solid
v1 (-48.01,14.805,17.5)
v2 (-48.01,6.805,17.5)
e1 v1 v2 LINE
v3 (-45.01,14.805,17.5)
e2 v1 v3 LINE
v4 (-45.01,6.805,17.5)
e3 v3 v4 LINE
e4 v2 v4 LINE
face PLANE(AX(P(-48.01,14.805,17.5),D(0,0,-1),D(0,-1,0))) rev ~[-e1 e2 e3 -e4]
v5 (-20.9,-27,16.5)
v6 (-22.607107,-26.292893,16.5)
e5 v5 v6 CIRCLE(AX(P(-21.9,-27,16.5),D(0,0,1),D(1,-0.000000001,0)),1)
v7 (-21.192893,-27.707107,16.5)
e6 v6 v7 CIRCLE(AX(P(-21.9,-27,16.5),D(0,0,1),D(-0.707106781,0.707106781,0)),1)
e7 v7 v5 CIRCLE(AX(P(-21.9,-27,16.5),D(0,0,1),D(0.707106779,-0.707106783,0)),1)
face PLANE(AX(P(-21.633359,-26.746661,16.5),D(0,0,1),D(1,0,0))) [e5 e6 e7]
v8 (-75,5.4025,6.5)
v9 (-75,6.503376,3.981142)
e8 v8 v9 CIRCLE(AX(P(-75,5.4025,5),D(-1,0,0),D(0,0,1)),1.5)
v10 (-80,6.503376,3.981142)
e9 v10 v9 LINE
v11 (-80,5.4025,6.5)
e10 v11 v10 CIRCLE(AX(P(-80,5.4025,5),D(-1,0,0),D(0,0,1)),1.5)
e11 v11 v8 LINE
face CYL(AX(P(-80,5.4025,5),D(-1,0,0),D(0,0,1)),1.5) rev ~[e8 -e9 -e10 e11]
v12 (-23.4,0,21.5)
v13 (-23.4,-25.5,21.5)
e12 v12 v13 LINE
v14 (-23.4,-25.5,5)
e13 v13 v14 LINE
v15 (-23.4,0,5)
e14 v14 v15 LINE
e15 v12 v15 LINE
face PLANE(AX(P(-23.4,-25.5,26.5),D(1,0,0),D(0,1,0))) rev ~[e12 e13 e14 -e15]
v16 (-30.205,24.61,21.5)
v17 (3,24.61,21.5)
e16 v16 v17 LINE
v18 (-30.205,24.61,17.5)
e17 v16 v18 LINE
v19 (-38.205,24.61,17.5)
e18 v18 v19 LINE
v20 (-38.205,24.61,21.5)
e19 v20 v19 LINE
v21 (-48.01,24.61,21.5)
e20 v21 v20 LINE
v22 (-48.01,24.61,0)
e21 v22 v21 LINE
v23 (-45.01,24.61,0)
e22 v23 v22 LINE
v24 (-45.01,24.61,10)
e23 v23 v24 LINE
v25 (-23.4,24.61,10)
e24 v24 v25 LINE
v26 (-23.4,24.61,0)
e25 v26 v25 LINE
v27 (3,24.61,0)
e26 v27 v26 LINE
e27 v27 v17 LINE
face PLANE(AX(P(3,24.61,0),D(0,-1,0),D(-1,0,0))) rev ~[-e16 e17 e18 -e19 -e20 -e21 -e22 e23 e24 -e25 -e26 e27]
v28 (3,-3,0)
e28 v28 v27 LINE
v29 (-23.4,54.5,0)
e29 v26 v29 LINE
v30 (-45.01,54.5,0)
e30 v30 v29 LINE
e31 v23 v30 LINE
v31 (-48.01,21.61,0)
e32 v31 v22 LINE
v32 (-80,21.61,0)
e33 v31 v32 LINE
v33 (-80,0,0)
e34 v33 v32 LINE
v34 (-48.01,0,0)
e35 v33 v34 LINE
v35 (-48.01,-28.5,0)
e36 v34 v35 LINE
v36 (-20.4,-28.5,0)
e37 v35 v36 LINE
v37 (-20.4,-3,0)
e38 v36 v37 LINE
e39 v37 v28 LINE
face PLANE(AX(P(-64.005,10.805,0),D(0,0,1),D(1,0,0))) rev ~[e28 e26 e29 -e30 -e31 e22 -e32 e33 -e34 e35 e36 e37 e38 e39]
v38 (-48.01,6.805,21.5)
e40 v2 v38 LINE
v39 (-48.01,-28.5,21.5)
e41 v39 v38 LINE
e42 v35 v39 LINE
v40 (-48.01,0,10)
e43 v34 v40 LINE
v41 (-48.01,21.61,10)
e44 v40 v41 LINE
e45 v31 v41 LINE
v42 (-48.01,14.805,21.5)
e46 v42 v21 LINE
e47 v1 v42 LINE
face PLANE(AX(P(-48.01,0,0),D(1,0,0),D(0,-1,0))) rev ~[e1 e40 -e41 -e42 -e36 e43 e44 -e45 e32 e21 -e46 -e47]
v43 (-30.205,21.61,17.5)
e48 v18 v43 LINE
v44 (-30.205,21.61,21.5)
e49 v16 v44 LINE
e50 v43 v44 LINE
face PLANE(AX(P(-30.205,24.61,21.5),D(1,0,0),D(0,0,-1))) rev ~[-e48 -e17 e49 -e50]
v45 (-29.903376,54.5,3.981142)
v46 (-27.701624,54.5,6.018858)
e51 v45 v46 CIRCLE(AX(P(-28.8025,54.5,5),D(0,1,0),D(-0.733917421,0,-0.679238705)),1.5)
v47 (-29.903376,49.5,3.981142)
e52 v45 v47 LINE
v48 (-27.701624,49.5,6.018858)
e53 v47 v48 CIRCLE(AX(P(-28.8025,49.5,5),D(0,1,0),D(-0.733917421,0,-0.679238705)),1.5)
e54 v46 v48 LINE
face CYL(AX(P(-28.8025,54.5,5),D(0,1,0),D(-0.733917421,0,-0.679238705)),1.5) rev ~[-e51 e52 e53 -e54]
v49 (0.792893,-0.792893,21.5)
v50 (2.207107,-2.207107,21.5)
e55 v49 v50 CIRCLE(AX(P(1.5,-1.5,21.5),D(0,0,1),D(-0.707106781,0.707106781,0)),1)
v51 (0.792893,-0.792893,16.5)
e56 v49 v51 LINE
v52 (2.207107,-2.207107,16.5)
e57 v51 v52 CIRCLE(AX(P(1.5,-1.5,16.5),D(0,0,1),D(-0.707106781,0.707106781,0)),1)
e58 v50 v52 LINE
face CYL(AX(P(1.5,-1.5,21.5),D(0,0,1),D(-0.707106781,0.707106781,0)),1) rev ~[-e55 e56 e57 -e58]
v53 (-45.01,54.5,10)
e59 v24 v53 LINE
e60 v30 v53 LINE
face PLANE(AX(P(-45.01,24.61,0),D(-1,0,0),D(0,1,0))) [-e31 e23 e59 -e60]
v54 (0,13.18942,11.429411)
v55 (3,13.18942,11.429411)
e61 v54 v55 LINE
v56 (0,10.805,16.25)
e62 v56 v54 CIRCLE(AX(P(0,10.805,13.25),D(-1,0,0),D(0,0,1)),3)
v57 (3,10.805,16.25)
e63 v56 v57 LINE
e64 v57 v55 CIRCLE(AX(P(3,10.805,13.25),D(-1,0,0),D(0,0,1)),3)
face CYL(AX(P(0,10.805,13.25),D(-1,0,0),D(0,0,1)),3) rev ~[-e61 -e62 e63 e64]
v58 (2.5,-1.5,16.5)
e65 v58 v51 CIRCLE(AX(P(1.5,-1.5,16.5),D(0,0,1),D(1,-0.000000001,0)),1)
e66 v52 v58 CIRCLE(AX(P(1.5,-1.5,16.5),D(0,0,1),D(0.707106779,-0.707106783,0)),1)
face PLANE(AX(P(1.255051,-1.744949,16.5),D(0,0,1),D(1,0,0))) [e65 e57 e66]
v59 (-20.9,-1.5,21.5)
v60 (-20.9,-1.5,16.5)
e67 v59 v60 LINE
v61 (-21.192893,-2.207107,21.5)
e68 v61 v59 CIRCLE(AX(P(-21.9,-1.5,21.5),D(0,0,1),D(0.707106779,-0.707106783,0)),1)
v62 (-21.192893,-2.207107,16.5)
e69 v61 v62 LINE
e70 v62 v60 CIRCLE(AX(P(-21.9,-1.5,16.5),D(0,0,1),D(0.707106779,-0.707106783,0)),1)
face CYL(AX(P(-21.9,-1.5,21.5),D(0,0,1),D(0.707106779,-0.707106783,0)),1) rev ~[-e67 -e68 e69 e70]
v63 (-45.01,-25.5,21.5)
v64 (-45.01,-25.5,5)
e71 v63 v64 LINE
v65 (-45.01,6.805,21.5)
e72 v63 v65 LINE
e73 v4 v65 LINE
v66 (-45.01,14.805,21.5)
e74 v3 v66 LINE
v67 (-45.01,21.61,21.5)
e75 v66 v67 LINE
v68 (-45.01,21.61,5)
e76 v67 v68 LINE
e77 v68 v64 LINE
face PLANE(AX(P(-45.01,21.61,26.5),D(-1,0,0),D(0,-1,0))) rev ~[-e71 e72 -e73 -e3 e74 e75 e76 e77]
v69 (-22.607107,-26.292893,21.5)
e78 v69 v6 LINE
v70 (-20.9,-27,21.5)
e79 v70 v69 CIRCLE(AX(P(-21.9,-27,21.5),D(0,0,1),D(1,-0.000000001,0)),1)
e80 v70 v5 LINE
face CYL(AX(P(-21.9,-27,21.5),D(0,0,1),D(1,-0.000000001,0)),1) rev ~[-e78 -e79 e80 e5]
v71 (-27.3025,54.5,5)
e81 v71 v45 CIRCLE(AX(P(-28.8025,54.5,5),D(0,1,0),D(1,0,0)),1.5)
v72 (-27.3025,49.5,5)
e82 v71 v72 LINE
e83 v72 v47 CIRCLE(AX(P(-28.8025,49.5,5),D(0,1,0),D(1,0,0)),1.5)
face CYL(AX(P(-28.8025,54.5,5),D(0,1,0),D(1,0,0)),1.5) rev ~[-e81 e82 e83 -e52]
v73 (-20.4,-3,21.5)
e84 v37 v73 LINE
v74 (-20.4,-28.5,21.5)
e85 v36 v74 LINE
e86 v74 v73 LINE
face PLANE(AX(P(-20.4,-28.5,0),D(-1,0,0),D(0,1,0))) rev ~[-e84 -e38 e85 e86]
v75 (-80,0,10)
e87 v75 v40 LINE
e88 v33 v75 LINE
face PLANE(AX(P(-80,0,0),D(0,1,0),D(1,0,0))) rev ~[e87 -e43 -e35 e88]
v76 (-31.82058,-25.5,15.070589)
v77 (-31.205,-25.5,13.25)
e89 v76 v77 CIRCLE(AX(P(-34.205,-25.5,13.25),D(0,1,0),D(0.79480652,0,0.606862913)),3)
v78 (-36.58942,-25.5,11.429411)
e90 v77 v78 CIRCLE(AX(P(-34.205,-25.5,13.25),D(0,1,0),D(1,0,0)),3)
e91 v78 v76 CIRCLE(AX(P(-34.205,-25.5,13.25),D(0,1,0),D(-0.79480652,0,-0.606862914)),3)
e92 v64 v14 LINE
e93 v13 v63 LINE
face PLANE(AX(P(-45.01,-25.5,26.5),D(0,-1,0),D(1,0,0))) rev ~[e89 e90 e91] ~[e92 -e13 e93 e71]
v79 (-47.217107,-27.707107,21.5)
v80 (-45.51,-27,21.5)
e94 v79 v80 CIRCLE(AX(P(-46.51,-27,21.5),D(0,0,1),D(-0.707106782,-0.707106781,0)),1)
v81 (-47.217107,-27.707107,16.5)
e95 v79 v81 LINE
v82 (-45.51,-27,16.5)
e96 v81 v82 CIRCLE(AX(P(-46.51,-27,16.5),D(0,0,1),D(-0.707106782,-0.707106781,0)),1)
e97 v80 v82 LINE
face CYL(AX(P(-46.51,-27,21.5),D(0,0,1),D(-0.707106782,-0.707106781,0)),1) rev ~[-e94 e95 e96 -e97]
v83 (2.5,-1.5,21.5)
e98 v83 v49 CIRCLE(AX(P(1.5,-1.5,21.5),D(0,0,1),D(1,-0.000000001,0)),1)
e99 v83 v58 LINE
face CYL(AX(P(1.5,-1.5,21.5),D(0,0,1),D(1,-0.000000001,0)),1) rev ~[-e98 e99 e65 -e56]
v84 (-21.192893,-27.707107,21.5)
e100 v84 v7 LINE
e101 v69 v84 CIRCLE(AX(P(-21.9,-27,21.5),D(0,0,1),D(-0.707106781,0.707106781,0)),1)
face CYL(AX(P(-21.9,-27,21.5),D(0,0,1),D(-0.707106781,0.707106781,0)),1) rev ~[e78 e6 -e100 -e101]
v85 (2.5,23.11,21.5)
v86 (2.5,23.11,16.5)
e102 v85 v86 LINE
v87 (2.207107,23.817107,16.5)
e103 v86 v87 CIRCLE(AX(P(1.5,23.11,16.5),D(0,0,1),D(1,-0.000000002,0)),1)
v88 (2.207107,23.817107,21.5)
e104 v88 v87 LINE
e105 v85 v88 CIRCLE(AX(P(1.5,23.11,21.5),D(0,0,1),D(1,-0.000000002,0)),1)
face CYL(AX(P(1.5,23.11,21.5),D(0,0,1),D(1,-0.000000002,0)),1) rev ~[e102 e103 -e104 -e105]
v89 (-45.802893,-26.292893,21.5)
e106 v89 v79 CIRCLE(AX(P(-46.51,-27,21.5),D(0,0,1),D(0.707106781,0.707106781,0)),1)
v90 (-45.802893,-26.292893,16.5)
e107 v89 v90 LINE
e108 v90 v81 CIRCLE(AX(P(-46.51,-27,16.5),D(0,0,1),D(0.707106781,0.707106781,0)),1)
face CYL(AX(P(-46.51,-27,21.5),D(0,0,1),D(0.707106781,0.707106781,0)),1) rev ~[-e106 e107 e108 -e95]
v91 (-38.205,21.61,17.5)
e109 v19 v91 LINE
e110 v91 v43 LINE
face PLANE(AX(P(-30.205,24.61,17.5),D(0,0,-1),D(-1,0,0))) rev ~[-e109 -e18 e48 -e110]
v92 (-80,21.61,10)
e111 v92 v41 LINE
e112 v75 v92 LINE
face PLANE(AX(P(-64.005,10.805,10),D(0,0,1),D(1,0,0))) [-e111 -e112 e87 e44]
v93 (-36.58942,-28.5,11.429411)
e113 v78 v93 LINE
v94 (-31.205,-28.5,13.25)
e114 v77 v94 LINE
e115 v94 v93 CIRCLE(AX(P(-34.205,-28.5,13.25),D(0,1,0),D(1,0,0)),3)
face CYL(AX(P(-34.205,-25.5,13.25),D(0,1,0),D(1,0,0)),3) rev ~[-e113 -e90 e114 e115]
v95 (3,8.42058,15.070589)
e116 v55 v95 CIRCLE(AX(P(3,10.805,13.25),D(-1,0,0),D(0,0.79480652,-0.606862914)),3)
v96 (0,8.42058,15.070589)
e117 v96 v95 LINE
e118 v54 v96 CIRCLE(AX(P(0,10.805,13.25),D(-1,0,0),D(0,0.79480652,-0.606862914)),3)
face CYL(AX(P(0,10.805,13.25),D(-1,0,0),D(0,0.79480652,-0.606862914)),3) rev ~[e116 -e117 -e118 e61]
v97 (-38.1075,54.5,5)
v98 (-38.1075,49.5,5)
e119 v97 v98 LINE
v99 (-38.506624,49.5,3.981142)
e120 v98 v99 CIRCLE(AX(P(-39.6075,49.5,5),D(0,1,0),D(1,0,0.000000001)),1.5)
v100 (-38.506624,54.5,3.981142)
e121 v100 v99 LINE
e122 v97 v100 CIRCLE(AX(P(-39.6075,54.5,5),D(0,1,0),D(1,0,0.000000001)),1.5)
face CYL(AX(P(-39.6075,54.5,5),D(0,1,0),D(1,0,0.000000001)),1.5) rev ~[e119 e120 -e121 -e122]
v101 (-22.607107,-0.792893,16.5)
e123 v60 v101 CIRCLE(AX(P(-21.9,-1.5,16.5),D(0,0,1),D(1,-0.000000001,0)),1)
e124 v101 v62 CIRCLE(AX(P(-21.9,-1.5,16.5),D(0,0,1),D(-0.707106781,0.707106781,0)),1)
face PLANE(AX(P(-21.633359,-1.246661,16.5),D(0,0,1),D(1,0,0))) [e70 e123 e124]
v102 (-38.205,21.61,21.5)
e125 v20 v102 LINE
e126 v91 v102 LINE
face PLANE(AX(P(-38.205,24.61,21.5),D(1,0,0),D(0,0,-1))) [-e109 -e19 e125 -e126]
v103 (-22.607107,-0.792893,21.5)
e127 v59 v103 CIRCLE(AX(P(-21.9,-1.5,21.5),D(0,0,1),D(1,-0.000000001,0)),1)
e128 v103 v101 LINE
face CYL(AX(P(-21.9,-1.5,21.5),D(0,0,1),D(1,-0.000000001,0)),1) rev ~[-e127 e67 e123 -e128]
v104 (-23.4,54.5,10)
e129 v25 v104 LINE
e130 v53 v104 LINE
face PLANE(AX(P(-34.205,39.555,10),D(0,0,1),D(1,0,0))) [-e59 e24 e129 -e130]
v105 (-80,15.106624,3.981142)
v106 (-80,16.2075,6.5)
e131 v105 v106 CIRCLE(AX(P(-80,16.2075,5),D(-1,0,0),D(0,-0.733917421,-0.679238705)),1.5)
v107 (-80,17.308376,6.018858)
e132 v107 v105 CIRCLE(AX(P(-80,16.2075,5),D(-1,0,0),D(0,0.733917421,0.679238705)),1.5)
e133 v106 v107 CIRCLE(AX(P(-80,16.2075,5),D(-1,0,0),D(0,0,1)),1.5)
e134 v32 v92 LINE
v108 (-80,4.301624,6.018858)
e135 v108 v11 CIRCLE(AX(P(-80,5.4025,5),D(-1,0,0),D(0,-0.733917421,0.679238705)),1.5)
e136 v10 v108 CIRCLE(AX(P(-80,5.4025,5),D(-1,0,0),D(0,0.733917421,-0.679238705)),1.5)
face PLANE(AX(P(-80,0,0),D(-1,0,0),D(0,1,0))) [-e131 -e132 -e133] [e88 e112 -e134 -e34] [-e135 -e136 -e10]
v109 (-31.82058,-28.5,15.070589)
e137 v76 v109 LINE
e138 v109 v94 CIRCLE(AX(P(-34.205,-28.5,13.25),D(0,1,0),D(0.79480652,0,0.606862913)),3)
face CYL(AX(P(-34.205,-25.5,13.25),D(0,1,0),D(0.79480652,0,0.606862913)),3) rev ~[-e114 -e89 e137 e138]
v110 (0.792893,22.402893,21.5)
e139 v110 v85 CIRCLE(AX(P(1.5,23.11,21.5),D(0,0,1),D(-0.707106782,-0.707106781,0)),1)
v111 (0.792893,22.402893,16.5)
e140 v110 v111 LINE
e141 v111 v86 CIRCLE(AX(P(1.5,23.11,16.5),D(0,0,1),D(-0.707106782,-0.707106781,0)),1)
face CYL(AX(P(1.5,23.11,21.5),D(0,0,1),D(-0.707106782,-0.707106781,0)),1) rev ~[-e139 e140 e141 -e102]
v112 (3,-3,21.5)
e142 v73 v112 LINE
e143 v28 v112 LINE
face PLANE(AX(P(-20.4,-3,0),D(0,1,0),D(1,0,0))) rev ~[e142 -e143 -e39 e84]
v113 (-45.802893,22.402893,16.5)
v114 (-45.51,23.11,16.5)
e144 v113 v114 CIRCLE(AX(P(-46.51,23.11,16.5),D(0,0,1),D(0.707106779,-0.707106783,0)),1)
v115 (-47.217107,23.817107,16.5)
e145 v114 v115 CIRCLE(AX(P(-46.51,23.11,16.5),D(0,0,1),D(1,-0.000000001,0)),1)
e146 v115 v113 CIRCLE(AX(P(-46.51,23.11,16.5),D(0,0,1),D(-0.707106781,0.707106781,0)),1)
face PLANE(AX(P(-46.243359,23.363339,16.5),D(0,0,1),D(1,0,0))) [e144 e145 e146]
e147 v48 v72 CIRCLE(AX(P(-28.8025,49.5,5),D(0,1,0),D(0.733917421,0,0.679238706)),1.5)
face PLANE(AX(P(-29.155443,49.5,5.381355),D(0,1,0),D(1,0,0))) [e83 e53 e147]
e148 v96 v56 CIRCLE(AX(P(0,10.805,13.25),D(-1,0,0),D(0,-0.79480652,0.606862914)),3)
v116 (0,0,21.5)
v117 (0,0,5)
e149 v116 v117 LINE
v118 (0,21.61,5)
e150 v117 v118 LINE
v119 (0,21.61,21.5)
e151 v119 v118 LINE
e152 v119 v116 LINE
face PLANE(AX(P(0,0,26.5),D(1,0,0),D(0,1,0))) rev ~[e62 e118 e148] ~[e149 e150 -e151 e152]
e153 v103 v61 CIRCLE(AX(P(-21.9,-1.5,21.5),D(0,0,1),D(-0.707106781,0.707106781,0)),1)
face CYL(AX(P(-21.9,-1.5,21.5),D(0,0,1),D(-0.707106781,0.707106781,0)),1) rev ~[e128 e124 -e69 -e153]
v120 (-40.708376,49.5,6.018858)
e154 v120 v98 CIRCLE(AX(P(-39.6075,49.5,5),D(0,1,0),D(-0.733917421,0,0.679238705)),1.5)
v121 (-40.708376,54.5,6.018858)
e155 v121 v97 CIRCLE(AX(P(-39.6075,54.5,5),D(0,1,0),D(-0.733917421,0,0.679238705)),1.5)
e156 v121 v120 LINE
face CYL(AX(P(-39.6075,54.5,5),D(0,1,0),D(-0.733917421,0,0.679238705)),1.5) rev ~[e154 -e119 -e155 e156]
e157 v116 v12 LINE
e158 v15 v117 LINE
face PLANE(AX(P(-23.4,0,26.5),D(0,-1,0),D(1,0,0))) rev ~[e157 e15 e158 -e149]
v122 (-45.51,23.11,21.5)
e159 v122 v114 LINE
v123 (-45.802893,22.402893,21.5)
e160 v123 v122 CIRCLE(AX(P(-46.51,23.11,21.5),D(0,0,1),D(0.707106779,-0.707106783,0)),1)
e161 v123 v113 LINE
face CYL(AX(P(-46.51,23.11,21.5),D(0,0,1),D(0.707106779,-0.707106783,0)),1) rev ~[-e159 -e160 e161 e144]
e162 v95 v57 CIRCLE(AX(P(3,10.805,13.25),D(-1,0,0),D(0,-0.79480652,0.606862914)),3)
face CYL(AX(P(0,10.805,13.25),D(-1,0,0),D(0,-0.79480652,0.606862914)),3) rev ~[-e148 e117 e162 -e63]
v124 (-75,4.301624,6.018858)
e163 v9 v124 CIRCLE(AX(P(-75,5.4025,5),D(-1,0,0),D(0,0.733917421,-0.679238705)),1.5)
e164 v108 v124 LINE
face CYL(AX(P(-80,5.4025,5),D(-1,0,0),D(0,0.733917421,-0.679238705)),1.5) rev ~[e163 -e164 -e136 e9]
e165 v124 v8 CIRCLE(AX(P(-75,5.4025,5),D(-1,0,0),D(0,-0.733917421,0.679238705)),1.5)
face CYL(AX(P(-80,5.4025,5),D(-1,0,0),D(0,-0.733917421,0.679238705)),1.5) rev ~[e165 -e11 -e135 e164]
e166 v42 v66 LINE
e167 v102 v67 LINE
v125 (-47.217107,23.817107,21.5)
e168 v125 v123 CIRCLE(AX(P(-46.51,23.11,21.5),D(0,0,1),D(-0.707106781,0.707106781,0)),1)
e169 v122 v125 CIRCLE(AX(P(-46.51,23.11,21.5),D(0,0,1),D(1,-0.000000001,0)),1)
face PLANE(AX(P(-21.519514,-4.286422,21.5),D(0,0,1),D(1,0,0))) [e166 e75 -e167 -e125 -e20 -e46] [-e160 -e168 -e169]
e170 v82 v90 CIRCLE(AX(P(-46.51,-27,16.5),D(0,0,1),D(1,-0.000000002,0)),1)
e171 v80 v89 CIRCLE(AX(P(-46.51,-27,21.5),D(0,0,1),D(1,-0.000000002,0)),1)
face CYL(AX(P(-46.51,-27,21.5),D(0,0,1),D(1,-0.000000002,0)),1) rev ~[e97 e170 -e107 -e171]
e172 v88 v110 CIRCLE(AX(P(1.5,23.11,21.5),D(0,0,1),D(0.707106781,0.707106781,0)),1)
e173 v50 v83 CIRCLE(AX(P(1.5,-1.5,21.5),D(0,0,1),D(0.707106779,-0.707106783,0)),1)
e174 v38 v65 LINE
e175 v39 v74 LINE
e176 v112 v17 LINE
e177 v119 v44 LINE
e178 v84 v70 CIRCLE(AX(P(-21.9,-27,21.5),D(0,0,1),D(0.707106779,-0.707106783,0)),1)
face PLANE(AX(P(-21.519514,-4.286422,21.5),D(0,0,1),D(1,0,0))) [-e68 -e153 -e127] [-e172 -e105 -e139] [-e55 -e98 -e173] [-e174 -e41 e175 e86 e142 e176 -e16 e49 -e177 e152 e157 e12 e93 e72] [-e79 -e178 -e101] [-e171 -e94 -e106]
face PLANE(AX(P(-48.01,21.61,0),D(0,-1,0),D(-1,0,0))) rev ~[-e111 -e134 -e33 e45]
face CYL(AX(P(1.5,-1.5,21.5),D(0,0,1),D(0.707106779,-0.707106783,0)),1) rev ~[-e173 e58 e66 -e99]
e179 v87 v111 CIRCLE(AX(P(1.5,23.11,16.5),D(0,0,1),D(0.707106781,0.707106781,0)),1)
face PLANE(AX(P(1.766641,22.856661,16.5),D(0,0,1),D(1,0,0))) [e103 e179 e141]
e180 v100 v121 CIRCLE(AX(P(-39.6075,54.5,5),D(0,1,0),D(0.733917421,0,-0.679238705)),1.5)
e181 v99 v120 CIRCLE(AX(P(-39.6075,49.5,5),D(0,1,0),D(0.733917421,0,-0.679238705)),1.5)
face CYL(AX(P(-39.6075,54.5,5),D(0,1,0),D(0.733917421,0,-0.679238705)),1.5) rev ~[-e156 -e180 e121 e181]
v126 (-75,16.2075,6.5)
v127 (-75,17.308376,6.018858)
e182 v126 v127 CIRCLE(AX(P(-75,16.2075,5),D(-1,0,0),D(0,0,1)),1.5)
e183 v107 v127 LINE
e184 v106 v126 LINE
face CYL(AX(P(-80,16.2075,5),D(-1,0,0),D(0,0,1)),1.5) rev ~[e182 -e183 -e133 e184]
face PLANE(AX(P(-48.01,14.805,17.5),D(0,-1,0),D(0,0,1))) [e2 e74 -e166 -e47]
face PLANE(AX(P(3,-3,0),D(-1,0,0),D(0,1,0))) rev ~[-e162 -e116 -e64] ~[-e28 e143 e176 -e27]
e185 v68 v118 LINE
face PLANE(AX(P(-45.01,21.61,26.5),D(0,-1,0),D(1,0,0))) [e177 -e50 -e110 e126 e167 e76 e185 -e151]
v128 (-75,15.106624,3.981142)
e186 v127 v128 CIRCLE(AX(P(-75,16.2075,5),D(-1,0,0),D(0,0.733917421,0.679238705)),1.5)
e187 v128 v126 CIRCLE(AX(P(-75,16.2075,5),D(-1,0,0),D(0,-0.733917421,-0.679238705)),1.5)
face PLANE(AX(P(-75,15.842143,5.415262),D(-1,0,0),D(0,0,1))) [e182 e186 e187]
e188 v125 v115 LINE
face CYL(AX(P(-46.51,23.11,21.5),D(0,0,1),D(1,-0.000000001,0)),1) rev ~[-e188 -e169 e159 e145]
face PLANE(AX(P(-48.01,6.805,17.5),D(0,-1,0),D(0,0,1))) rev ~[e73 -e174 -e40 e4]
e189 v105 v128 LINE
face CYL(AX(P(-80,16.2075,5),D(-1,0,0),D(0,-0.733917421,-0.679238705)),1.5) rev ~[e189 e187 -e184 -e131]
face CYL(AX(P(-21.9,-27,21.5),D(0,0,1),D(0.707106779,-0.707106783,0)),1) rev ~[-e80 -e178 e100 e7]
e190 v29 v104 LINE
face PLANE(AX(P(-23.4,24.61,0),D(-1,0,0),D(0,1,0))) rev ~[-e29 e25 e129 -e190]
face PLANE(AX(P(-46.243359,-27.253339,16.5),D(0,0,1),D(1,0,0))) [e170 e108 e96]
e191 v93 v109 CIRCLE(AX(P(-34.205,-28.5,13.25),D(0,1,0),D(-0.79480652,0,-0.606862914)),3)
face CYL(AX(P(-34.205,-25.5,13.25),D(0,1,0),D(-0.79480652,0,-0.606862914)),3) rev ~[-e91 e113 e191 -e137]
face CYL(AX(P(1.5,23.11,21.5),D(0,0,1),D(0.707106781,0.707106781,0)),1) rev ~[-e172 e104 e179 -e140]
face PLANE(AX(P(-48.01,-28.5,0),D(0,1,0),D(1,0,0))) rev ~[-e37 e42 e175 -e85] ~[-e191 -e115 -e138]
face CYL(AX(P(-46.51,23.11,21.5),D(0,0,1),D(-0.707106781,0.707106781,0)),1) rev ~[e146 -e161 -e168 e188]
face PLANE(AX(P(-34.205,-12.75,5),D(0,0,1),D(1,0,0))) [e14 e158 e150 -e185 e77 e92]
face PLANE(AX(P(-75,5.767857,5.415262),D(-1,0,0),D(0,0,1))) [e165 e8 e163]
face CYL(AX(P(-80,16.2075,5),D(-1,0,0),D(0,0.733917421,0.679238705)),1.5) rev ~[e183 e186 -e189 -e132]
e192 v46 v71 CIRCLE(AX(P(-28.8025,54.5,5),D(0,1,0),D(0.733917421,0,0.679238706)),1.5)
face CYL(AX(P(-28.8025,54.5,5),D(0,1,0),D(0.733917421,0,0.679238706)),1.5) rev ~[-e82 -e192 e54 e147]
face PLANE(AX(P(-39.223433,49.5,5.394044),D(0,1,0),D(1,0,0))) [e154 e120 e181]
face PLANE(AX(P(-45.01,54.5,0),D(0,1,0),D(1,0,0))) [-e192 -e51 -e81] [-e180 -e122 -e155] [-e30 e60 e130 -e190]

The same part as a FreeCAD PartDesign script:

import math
import FreeCAD as App
import Part
import Sketcher

doc = App.newDocument("Part")
body = doc.addObject("PartDesign::Body", "Body")

# Sketch on XY plane
sketch1 = body.newObject("Sketcher::SketchObject", "Sketch")
sketch1.AttachmentSupport = (doc.getObject("XY_Plane"), [""])
sketch1.MapMode = "FlatFace"
sketch1.addGeometry([
    Part.LineSegment(App.Vector(-80, 21.6, 0), App.Vector(-80, 0, 0)),  # 0
    Part.LineSegment(App.Vector(-80, 0, 0), App.Vector(-48, 0, 0)),  # 1
    Part.LineSegment(App.Vector(-48, 0, 0), App.Vector(-48, -28.5, 0)),  # 2
    Part.LineSegment(App.Vector(-48, -28.5, 0), App.Vector(-20.4, -28.5, 0)),  # 3
    Part.LineSegment(App.Vector(-20.4, -28.5, 0), App.Vector(-20.4, -3, 0)),  # 4
    Part.LineSegment(App.Vector(-20.4, -3, 0), App.Vector(3, -3, 0)),  # 5
    Part.LineSegment(App.Vector(3, -3, 0), App.Vector(3, 24.6, 0)),  # 6
    Part.LineSegment(App.Vector(3, 24.6, 0), App.Vector(-23.4, 24.6, 0)),  # 7
    Part.LineSegment(App.Vector(-23.4, 24.6, 0), App.Vector(-23.4, 54.5, 0)),  # 8
    Part.LineSegment(App.Vector(-23.4, 54.5, 0), App.Vector(-45, 54.5, 0)),  # 9
    Part.LineSegment(App.Vector(-45, 54.5, 0), App.Vector(-45, 24.6, 0)),  # 10
    Part.LineSegment(App.Vector(-45, 24.6, 0), App.Vector(-48, 24.6, 0)),  # 11
    Part.LineSegment(App.Vector(-48, 24.6, 0), App.Vector(-48, 21.6, 0)),  # 12
    Part.LineSegment(App.Vector(-48, 21.6, 0), App.Vector(-80, 21.6, 0)),  # 13
], False)
sketch1.addConstraint([
    Sketcher.Constraint("Coincident", 0, 2, 1, 1),
    Sketcher.Constraint("Coincident", 1, 2, 2, 1),
    Sketcher.Constraint("Coincident", 2, 2, 3, 1),
    Sketcher.Constraint("Coincident", 3, 2, 4, 1),
    Sketcher.Constraint("Coincident", 4, 2, 5, 1),
    Sketcher.Constraint("Coincident", 5, 2, 6, 1),
    Sketcher.Constraint("Coincident", 6, 2, 7, 1),
    Sketcher.Constraint("Coincident", 7, 2, 8, 1),
    Sketcher.Constraint("Coincident", 8, 2, 9, 1),
    Sketcher.Constraint("Coincident", 9, 2, 10, 1),
    Sketcher.Constraint("Coincident", 10, 2, 11, 1),
    Sketcher.Constraint("Coincident", 11, 2, 12, 1),
    Sketcher.Constraint("Coincident", 12, 2, 13, 1),
    Sketcher.Constraint("Coincident", 13, 2, 0, 1),
    Sketcher.Constraint("Vertical", 0),
    Sketcher.Constraint("Horizontal", 1),
    Sketcher.Constraint("Vertical", 2),
    Sketcher.Constraint("Horizontal", 3),
    Sketcher.Constraint("Vertical", 4),
    Sketcher.Constraint("Horizontal", 5),
    Sketcher.Constraint("Vertical", 6),
    Sketcher.Constraint("Horizontal", 7),
    Sketcher.Constraint("Vertical", 8),
    Sketcher.Constraint("Horizontal", 9),
    Sketcher.Constraint("Vertical", 10),
    Sketcher.Constraint("Horizontal", 11),
    Sketcher.Constraint("Vertical", 12),
    Sketcher.Constraint("Horizontal", 13),
    Sketcher.Constraint("PointOnObject", 0, 2, -1),
    Sketcher.Constraint("Horizontal", 7, 2, 10, 2),
    Sketcher.Constraint("Vertical", 2, 2, 11, 2),
    Sketcher.Constraint("Equal", 9, 0),
    Sketcher.Constraint("Equal", 3, 6),
    Sketcher.Constraint("Equal", 11, 12),
    Sketcher.Constraint("DistanceX", 11, 2, 11, 1, 3.0),
    Sketcher.Constraint("DistanceX", 5, 1, 5, 2, 23.4),
    Sketcher.Constraint("DistanceX", 7, 2, 7, 1, 26.4),
    Sketcher.Constraint("DistanceY", 2, 2, 2, 1, 28.5),
    Sketcher.Constraint("DistanceX", 0, 2, -1, 1, 80.0),
    Sketcher.Constraint("DistanceX", -1, 1, 5, 2, 3.0),
    Sketcher.Constraint("DistanceX", 1, 1, 1, 2, 31.99),
    Sketcher.Constraint("DistanceY", 8, 1, 8, 2, 29.89),
])
pad1 = body.newObject("PartDesign::Pad", "Pad")
pad1.Profile = sketch1
pad1.Length = 26.5

# Sketch on XY plane
sketch2 = body.newObject("Sketcher::SketchObject", "Sketch001")
sketch2.AttachmentSupport = (doc.getObject("XY_Plane"), [""])
sketch2.MapMode = "FlatFace"
sketch2.AttachmentOffset = App.Placement(App.Vector(0, 0, 26.5), App.Rotation())
sketch2.addGeometry([
    Part.LineSegment(App.Vector(-45, -26, 0), App.Vector(-23, -26, 0)),  # 0
    Part.LineSegment(App.Vector(-23, -26, 0), App.Vector(-23, 0, 0)),  # 1
    Part.LineSegment(App.Vector(-23, 0, 0), App.Vector(0, 0, 0)),  # 2
    Part.LineSegment(App.Vector(0, 0, 0), App.Vector(0, 22, 0)),  # 3
    Part.LineSegment(App.Vector(0, 22, 0), App.Vector(-45, 22, 0)),  # 4
    Part.LineSegment(App.Vector(-45, 22, 0), App.Vector(-45, -26, 0)),  # 5
], False)
sketch2.addConstraint([
    Sketcher.Constraint("Coincident", 0, 2, 1, 1),
    Sketcher.Constraint("Coincident", 1, 2, 2, 1),
    Sketcher.Constraint("Coincident", 2, 2, 3, 1),
    Sketcher.Constraint("Coincident", 3, 2, 4, 1),
    Sketcher.Constraint("Coincident", 4, 2, 5, 1),
    Sketcher.Constraint("Coincident", 5, 2, 0, 1),
    Sketcher.Constraint("Horizontal", 0),
    Sketcher.Constraint("Vertical", 1),
    Sketcher.Constraint("Horizontal", 2),
    Sketcher.Constraint("Vertical", 3),
    Sketcher.Constraint("Horizontal", 4),
    Sketcher.Constraint("Vertical", 5),
    Sketcher.Constraint("Coincident", 2, 2, -1, 1),
    Sketcher.Constraint("Equal", 0, 3),
    Sketcher.Constraint("DistanceX", 2, 1, 2, 2, 23.4),
    Sketcher.Constraint("DistanceY", 1, 1, 1, 2, 25.5),
    Sketcher.Constraint("DistanceX", 0, 1, 0, 2, 21.61),
])
pocket1 = body.newObject("PartDesign::Pocket", "Pocket")
pocket1.Profile = sketch2
pocket1.Length = 21.5

# Sketch on XY plane
sketch3 = body.newObject("Sketcher::SketchObject", "Sketch002")
sketch3.AttachmentSupport = (doc.getObject("XY_Plane"), [""])
sketch3.MapMode = "FlatFace"
sketch3.AttachmentOffset = App.Placement(App.Vector(0, 0, 26.5), App.Rotation())
sketch3.addGeometry([
    Part.LineSegment(App.Vector(-48, 25, 0), App.Vector(-48, -33, 0)),
    Part.LineSegment(App.Vector(-48, -33, 0), App.Vector(5, -33, 0)),
    Part.LineSegment(App.Vector(5, -33, 0), App.Vector(5, 25, 0)),
    Part.LineSegment(App.Vector(5, 25, 0), App.Vector(-48, 25, 0)),
], False)
sketch3.addConstraint([
    Sketcher.Constraint("Coincident", 0, 2, 1, 1),
    Sketcher.Constraint("Coincident", 1, 2, 2, 1),
    Sketcher.Constraint("Coincident", 2, 2, 3, 1),
    Sketcher.Constraint("Coincident", 3, 2, 0, 1),
    Sketcher.Constraint("Vertical", 0),
    Sketcher.Constraint("Horizontal", 1),
    Sketcher.Constraint("Vertical", 2),
    Sketcher.Constraint("Horizontal", 3),
    Sketcher.Constraint("DistanceX", 0, 2, -1, 1, 48.01),
    Sketcher.Constraint("DistanceY", -1, 1, 2, 2, 24.61),
    Sketcher.Constraint("DistanceX", 1, 1, 1, 2, 52.980973),
    Sketcher.Constraint("DistanceY", 0, 2, 0, 1, 57.792844),
])
pocket2 = body.newObject("PartDesign::Pocket", "Pocket001")
pocket2.Profile = sketch3
pocket2.Length = 5

# Sketch on XY plane
sketch4 = body.newObject("Sketcher::SketchObject", "Sketch003")
sketch4.AttachmentSupport = (doc.getObject("XY_Plane"), [""])
sketch4.MapMode = "FlatFace"
sketch4.AttachmentOffset = App.Placement(App.Vector(0, 0, 21.5), App.Rotation())
sketch4.addGeometry([
    Part.ArcOfCircle(Part.Circle(App.Vector(-21.9, -27, 0), App.Vector(0, 0, 1), 1), math.radians(0), math.radians(135)),  # 0
    Part.ArcOfCircle(Part.Circle(App.Vector(-21.9, -27, 0), App.Vector(0, 0, 1), 1), math.radians(135), math.radians(315)),  # 1
    Part.ArcOfCircle(Part.Circle(App.Vector(-21.9, -27, 0), App.Vector(0, 0, 1), 1), math.radians(-45), math.radians(0)),  # 2
    Part.ArcOfCircle(Part.Circle(App.Vector(-46.5, -27, 0), App.Vector(0, 0, 1), 1), math.radians(0), math.radians(45)),  # 3
    Part.ArcOfCircle(Part.Circle(App.Vector(-46.5, -27, 0), App.Vector(0, 0, 1), 1), math.radians(45), math.radians(225)),  # 4
    Part.ArcOfCircle(Part.Circle(App.Vector(-46.5, -27, 0), App.Vector(0, 0, 1), 1), math.radians(-135), math.radians(0)),  # 5
    Part.ArcOfCircle(Part.Circle(App.Vector(-46.5, 23.1, 0), App.Vector(0, 0, 1), 1), math.radians(0), math.radians(135)),  # 6
    Part.ArcOfCircle(Part.Circle(App.Vector(-46.5, 23.1, 0), App.Vector(0, 0, 1), 1), math.radians(135), math.radians(315)),  # 7
    Part.ArcOfCircle(Part.Circle(App.Vector(-46.5, 23.1, 0), App.Vector(0, 0, 1), 1), math.radians(-45), math.radians(0)),  # 8
    Part.ArcOfCircle(Part.Circle(App.Vector(1.5, 23.1, 0), App.Vector(0, 0, 1), 1), math.radians(0), math.radians(45)),  # 9
    Part.ArcOfCircle(Part.Circle(App.Vector(1.5, 23.1, 0), App.Vector(0, 0, 1), 1), math.radians(45), math.radians(225)),  # 10
    Part.ArcOfCircle(Part.Circle(App.Vector(1.5, 23.1, 0), App.Vector(0, 0, 1), 1), math.radians(-135), math.radians(0)),  # 11
    Part.ArcOfCircle(Part.Circle(App.Vector(1.5, -1.5, 0), App.Vector(0, 0, 1), 1), math.radians(135), math.radians(315)),  # 12
    Part.ArcOfCircle(Part.Circle(App.Vector(1.5, -1.5, 0), App.Vector(0, 0, 1), 1), math.radians(-45), math.radians(0)),  # 13
    Part.ArcOfCircle(Part.Circle(App.Vector(1.5, -1.5, 0), App.Vector(0, 0, 1), 1), math.radians(0), math.radians(135)),  # 14
    Part.ArcOfCircle(Part.Circle(App.Vector(-21.9, -1.5, 0), App.Vector(0, 0, 1), 1), math.radians(0), math.radians(135)),  # 15
    Part.ArcOfCircle(Part.Circle(App.Vector(-21.9, -1.5, 0), App.Vector(0, 0, 1), 1), math.radians(135), math.radians(315)),  # 16
    Part.ArcOfCircle(Part.Circle(App.Vector(-21.9, -1.5, 0), App.Vector(0, 0, 1), 1), math.radians(-45), math.radians(0)),  # 17
], False)
sketch4.addConstraint([
    Sketcher.Constraint("Tangent", 0, 2, 1, 1),
    Sketcher.Constraint("Tangent", 1, 2, 2, 1),
    Sketcher.Constraint("Tangent", 2, 2, 0, 1),
    Sketcher.Constraint("Tangent", 3, 2, 4, 1),
    Sketcher.Constraint("Tangent", 4, 2, 5, 1),
    Sketcher.Constraint("Tangent", 5, 2, 3, 1),
    Sketcher.Constraint("Tangent", 6, 2, 7, 1),
    Sketcher.Constraint("Tangent", 7, 2, 8, 1),
    Sketcher.Constraint("Tangent", 8, 2, 6, 1),
    Sketcher.Constraint("Tangent", 9, 2, 10, 1),
    Sketcher.Constraint("Tangent", 10, 2, 11, 1),
    Sketcher.Constraint("Tangent", 11, 2, 9, 1),
    Sketcher.Constraint("Tangent", 12, 2, 13, 1),
    Sketcher.Constraint("Tangent", 13, 2, 14, 1),
    Sketcher.Constraint("Tangent", 14, 2, 12, 1),
    Sketcher.Constraint("Tangent", 15, 2, 16, 1),
    Sketcher.Constraint("Tangent", 16, 2, 17, 1),
    Sketcher.Constraint("Tangent", 17, 2, 15, 1),
    Sketcher.Constraint("Equal", 2, 3),
    Sketcher.Constraint("Equal", 5, 6),
    Sketcher.Constraint("Equal", 8, 9),
    Sketcher.Constraint("Equal", 11, 12),
    Sketcher.Constraint("Equal", 14, 15),
    Sketcher.Constraint("Horizontal", 2, 3, 3, 3),
    Sketcher.Constraint("Horizontal", 8, 3, 9, 3),
    Sketcher.Constraint("Horizontal", 14, 3, 15, 3),
    Sketcher.Constraint("Horizontal", 5, 3, 2, 2),
    Sketcher.Constraint("Horizontal", 0, 2, 3, 2),
    Sketcher.Constraint("Horizontal", 1, 2, 4, 2),
    Sketcher.Constraint("Horizontal", 2, 2, 5, 2),
    Sketcher.Constraint("Horizontal", 11, 3, 8, 2),
    Sketcher.Constraint("Horizontal", 6, 2, 9, 2),
    Sketcher.Constraint("Horizontal", 7, 2, 10, 2),
    Sketcher.Constraint("Horizontal", 8, 2, 11, 2),
    Sketcher.Constraint("Horizontal", 17, 3, 13, 2),
    Sketcher.Constraint("Horizontal", 14, 2, 15, 2),
    Sketcher.Constraint("Horizontal", 12, 2, 16, 2),
    Sketcher.Constraint("Horizontal", 13, 2, 17, 2),
    Sketcher.Constraint("Vertical", 5, 3, 6, 3),
    Sketcher.Constraint("Vertical", 11, 3, 12, 3),
    Sketcher.Constraint("Vertical", 2, 3, 15, 3),
    Sketcher.Constraint("Vertical", 4, 2, 6, 2),
    Sketcher.Constraint("Vertical", 3, 2, 7, 2),
    Sketcher.Constraint("Vertical", 9, 2, 12, 2),
    Sketcher.Constraint("Vertical", 10, 2, 14, 2),
    Sketcher.Constraint("Radius", 0, 1.0),
    Sketcher.Constraint("DistanceY", 0, 3, -1, 1, 27.0),
    Sketcher.Constraint("DistanceX", 0, 3, -1, 1, 21.9),
    Sketcher.Constraint("DistanceX", -1, 1, 9, 3, 1.5),
    Sketcher.Constraint("DistanceY", 12, 3, -1, 1, 1.5),
    Sketcher.Constraint("DistanceX", 3, 3, -1, 1, 46.51),
    Sketcher.Constraint("DistanceY", -1, 1, 6, 3, 23.11),
    Sketcher.Constraint("DistanceX", 4, 2, 0, 2, 24.61),
    Sketcher.Constraint("DistanceX", 0, 2, -1, 1, 22.607107),
])
pocket3 = body.newObject("PartDesign::Pocket", "Pocket002")
pocket3.Profile = sketch4
pocket3.Length = 5

# Sketch on XY plane
sketch5 = body.newObject("Sketcher::SketchObject", "Sketch004")
sketch5.AttachmentSupport = (doc.getObject("XY_Plane"), [""])
sketch5.MapMode = "FlatFace"
sketch5.AttachmentOffset = App.Placement(App.Vector(0, 0, 26.5), App.Rotation())
sketch5.addGeometry([
    Part.LineSegment(App.Vector(-80, 22, 0), App.Vector(-80, 0, 0)),  # 0
    Part.LineSegment(App.Vector(-80, 0, 0), App.Vector(-48, 0, 0)),  # 1
    Part.LineSegment(App.Vector(-48, 0, 0), App.Vector(-48, 22, 0)),  # 2
    Part.LineSegment(App.Vector(-48, 22, 0), App.Vector(-80, 22, 0)),  # 3
    Part.LineSegment(App.Vector(-45, 54, 0), App.Vector(-45, 25, 0)),  # 4
    Part.LineSegment(App.Vector(-45, 25, 0), App.Vector(-23, 25, 0)),  # 5
    Part.LineSegment(App.Vector(-23, 25, 0), App.Vector(-23, 54, 0)),  # 6
    Part.LineSegment(App.Vector(-23, 54, 0), App.Vector(-45, 54, 0)),  # 7
], False)
sketch5.addConstraint([
    Sketcher.Constraint("Coincident", 0, 2, 1, 1),
    Sketcher.Constraint("Coincident", 1, 2, 2, 1),
    Sketcher.Constraint("Coincident", 2, 2, 3, 1),
    Sketcher.Constraint("Coincident", 3, 2, 0, 1),
    Sketcher.Constraint("Coincident", 4, 2, 5, 1),
    Sketcher.Constraint("Coincident", 5, 2, 6, 1),
    Sketcher.Constraint("Coincident", 6, 2, 7, 1),
    Sketcher.Constraint("Coincident", 7, 2, 4, 1),
    Sketcher.Constraint("Vertical", 0),
    Sketcher.Constraint("Horizontal", 1),
    Sketcher.Constraint("Vertical", 2),
    Sketcher.Constraint("Horizontal", 3),
    Sketcher.Constraint("Vertical", 4),
    Sketcher.Constraint("Horizontal", 5),
    Sketcher.Constraint("Vertical", 6),
    Sketcher.Constraint("Horizontal", 7),
    Sketcher.Constraint("PointOnObject", 0, 2, -1),
    Sketcher.Constraint("Equal", 7, 0),
    Sketcher.Constraint("DistanceX", 0, 2, -1, 1, 80.0),
    Sketcher.Constraint("DistanceX", 2, 2, 4, 2, 3.0),
    Sketcher.Constraint("DistanceY", 2, 2, 4, 2, 3.0),
    Sketcher.Constraint("DistanceX", 1, 1, 1, 2, 31.99),
    Sketcher.Constraint("DistanceX", 5, 1, 5, 2, 21.61),
    Sketcher.Constraint("DistanceY", 4, 2, 4, 1, 29.89),
])
pocket4 = body.newObject("PartDesign::Pocket", "Pocket003")
pocket4.Profile = sketch5
pocket4.Length = 16.5

# Sketch on YZ plane
sketch6 = body.newObject("Sketcher::SketchObject", "Sketch005")
sketch6.AttachmentSupport = (doc.getObject("YZ_Plane"), [""])
sketch6.MapMode = "FlatFace"
sketch6.addGeometry([
    Part.ArcOfCircle(Part.Circle(App.Vector(10.8, 13.2, 0), App.Vector(0, 0, 1), 3), math.radians(-37), math.radians(90)),
    Part.ArcOfCircle(Part.Circle(App.Vector(10.8, 13.2, 0), App.Vector(0, 0, 1), 3), math.radians(143), math.radians(323)),
    Part.ArcOfCircle(Part.Circle(App.Vector(10.8, 13.3, 0), App.Vector(0, 0, 1), 3), math.radians(90), math.radians(143)),
], False)
sketch6.addConstraint([
    Sketcher.Constraint("Tangent", 0, 1, 1, 2),
    Sketcher.Constraint("Tangent", 1, 1, 2, 2),
    Sketcher.Constraint("Tangent", 2, 1, 0, 2),
    Sketcher.Constraint("Vertical", 1, 3, 2, 1),
    Sketcher.Constraint("Radius", 0, 3.0),
    Sketcher.Constraint("DistanceY", -1, 1, 0, 3, 13.25),
    Sketcher.Constraint("DistanceX", -1, 1, 0, 3, 10.805),
    Sketcher.Constraint("DistanceX", -1, 1, 0, 1, 13.18942),
    Sketcher.Constraint("DistanceX", -1, 1, 1, 1, 8.42058),
])
pocket5 = body.newObject("PartDesign::Pocket", "Pocket004")
pocket5.Profile = sketch6
pocket5.Length = 16.5
pocket5.Reversed = True

# Sketch on XZ plane
sketch7 = body.newObject("Sketcher::SketchObject", "Sketch006")
sketch7.AttachmentSupport = (doc.getObject("XZ_Plane"), [""])
sketch7.MapMode = "FlatFace"
sketch7.AttachmentOffset = App.Placement(App.Vector(0, 0, 25.5), App.Rotation())
sketch7.addGeometry([
    Part.ArcOfCircle(Part.Circle(App.Vector(-34.2, 13.3, 0), App.Vector(0, 0, 1), 3), math.radians(-143), math.radians(0)),
    Part.ArcOfCircle(Part.Circle(App.Vector(-34.2, 13.2, 0), App.Vector(0, 0, 1), 3), math.radians(37), math.radians(217)),
    Part.ArcOfCircle(Part.Circle(App.Vector(-34.2, 13.2, 0), App.Vector(0, 0, 1), 3), math.radians(0), math.radians(37)),
], False)
sketch7.addConstraint([
    Sketcher.Constraint("Tangent", 0, 1, 1, 2),
    Sketcher.Constraint("Tangent", 1, 1, 2, 2),
    Sketcher.Constraint("Tangent", 2, 1, 0, 2),
    Sketcher.Constraint("Horizontal", 1, 3, 2, 1),
    Sketcher.Constraint("Radius", 0, 3.0),
    Sketcher.Constraint("DistanceY", -1, 1, 0, 3, 13.25),
    Sketcher.Constraint("DistanceX", 0, 3, -1, 1, 34.205),
    Sketcher.Constraint("DistanceX", 0, 1, -1, 1, 36.58942),
    Sketcher.Constraint("DistanceX", 1, 1, -1, 1, 31.82058),
])
pocket6 = body.newObject("PartDesign::Pocket", "Pocket005")
pocket6.Profile = sketch7
pocket6.Length = 16.5
pocket6.Reversed = True

# Sketch on XZ plane
sketch8 = body.newObject("Sketcher::SketchObject", "Sketch007")
sketch8.AttachmentSupport = (doc.getObject("XZ_Plane"), [""])
sketch8.MapMode = "FlatFace"
sketch8.AttachmentOffset = App.Placement(App.Vector(0, 0, -24.61), App.Rotation())
sketch8.addGeometry([
    Part.LineSegment(App.Vector(-30.2, 21.5, 0), App.Vector(-30.2, 17.5, 0)),
    Part.LineSegment(App.Vector(-30.2, 17.5, 0), App.Vector(-38.2, 17.5, 0)),
    Part.LineSegment(App.Vector(-38.2, 17.5, 0), App.Vector(-38.2, 21.5, 0)),
    Part.LineSegment(App.Vector(-38.2, 21.5, 0), App.Vector(-30.2, 21.5, 0)),
], False)
sketch8.addConstraint([
    Sketcher.Constraint("Coincident", 0, 2, 1, 1),
    Sketcher.Constraint("Coincident", 1, 2, 2, 1),
    Sketcher.Constraint("Coincident", 2, 2, 3, 1),
    Sketcher.Constraint("Coincident", 3, 2, 0, 1),
    Sketcher.Constraint("Vertical", 0),
    Sketcher.Constraint("Horizontal", 1),
    Sketcher.Constraint("Vertical", 2),
    Sketcher.Constraint("Horizontal", 3),
    Sketcher.Constraint("DistanceX", 1, 2, 1, 1, 8.0),
    Sketcher.Constraint("DistanceY", 0, 2, 0, 1, 4.0),
    Sketcher.Constraint("DistanceY", -1, 1, 0, 2, 17.5),
    Sketcher.Constraint("DistanceX", 0, 2, -1, 1, 30.205),
])
pocket7 = body.newObject("PartDesign::Pocket", "Pocket006")
pocket7.Profile = sketch8
pocket7.Length = 16.5
pocket7.Reversed = True

# Sketch on YZ plane
sketch9 = body.newObject("Sketcher::SketchObject", "Sketch008")
sketch9.AttachmentSupport = (doc.getObject("YZ_Plane"), [""])
sketch9.MapMode = "FlatFace"
sketch9.AttachmentOffset = App.Placement(App.Vector(0, 0, -48.01), App.Rotation())
sketch9.addGeometry([
    Part.LineSegment(App.Vector(6.8, 17.5, 0), App.Vector(6.8, 21.5, 0)),
    Part.LineSegment(App.Vector(6.8, 21.5, 0), App.Vector(14.8, 21.5, 0)),
    Part.LineSegment(App.Vector(14.8, 21.5, 0), App.Vector(14.8, 17.5, 0)),
    Part.LineSegment(App.Vector(14.8, 17.5, 0), App.Vector(6.8, 17.5, 0)),
], False)
sketch9.addConstraint([
    Sketcher.Constraint("Coincident", 0, 2, 1, 1),
    Sketcher.Constraint("Coincident", 1, 2, 2, 1),
    Sketcher.Constraint("Coincident", 2, 2, 3, 1),
    Sketcher.Constraint("Coincident", 3, 2, 0, 1),
    Sketcher.Constraint("Vertical", 0),
    Sketcher.Constraint("Horizontal", 1),
    Sketcher.Constraint("Vertical", 2),
    Sketcher.Constraint("Horizontal", 3),
    Sketcher.Constraint("DistanceX", 1, 1, 1, 2, 8.0),
    Sketcher.Constraint("DistanceY", 0, 1, 0, 2, 4.0),
    Sketcher.Constraint("DistanceY", -1, 1, 0, 2, 21.5),
    Sketcher.Constraint("DistanceX", -1, 1, 0, 2, 6.805),
])
pocket8 = body.newObject("PartDesign::Pocket", "Pocket007")
pocket8.Profile = sketch9
pocket8.Length = 16.5
pocket8.Reversed = True

# Sketch on YZ plane
sketch10 = body.newObject("Sketcher::SketchObject", "Sketch009")
sketch10.AttachmentSupport = (doc.getObject("YZ_Plane"), [""])
sketch10.MapMode = "FlatFace"
sketch10.AttachmentOffset = App.Placement(App.Vector(0, 0, -80), App.Rotation())
sketch10.addGeometry([
    Part.ArcOfCircle(Part.Circle(App.Vector(16.2, 5, 0), App.Vector(0, 0, 1), 1.5), math.radians(43), math.radians(90)),  # 0
    Part.ArcOfCircle(Part.Circle(App.Vector(16.2, 5, 0), App.Vector(0, 0, 1), 1.5), math.radians(-137), math.radians(43)),  # 1
    Part.ArcOfCircle(Part.Circle(App.Vector(16.2, 5, 0), App.Vector(0, 0, 1), 1.5), math.radians(90), math.radians(223)),  # 2
    Part.ArcOfCircle(Part.Circle(App.Vector(5.4, 5, 0), App.Vector(0, 0, 1), 1.5), math.radians(-43), math.radians(90)),  # 3
    Part.ArcOfCircle(Part.Circle(App.Vector(5.4, 5, 0), App.Vector(0, 0, 1), 1.5), math.radians(137), math.radians(317)),  # 4
    Part.ArcOfCircle(Part.Circle(App.Vector(5.4, 5, 0), App.Vector(0, 0, 1), 1.5), math.radians(90), math.radians(137)),  # 5
], False)
sketch10.addConstraint([
    Sketcher.Constraint("Tangent", 0, 1, 1, 2),
    Sketcher.Constraint("Tangent", 1, 1, 2, 2),
    Sketcher.Constraint("Tangent", 2, 1, 0, 2),
    Sketcher.Constraint("Tangent", 3, 1, 4, 2),
    Sketcher.Constraint("Tangent", 4, 1, 5, 2),
    Sketcher.Constraint("Tangent", 5, 1, 3, 2),
    Sketcher.Constraint("Equal", 2, 3),
    Sketcher.Constraint("Horizontal", 2, 3, 3, 3),
    Sketcher.Constraint("Horizontal", 1, 1, 3, 1),
    Sketcher.Constraint("Horizontal", 0, 1, 4, 1),
    Sketcher.Constraint("Vertical", 1, 3, 2, 1),
    Sketcher.Constraint("Vertical", 4, 3, 5, 1),
    Sketcher.Constraint("Radius", 0, 1.5),
    Sketcher.Constraint("DistanceY", -1, 1, 0, 3, 5.0),
    Sketcher.Constraint("DistanceX", 3, 3, 0, 3, 10.805),
    Sketcher.Constraint("DistanceX", 4, 1, 1, 1, 10.805),
    Sketcher.Constraint("DistanceX", -1, 1, 0, 3, 16.2075),
    Sketcher.Constraint("DistanceY", -1, 1, 0, 1, 6.018858),
])
pocket9 = body.newObject("PartDesign::Pocket", "Pocket008")
pocket9.Profile = sketch10
pocket9.Length = 5
pocket9.Reversed = True

# Sketch on XZ plane
sketch11 = body.newObject("Sketcher::SketchObject", "Sketch010")
sketch11.AttachmentSupport = (doc.getObject("XZ_Plane"), [""])
sketch11.MapMode = "FlatFace"
sketch11.AttachmentOffset = App.Placement(App.Vector(0, 0, -54.5), App.Rotation())
sketch11.addGeometry([
    Part.ArcOfCircle(Part.Circle(App.Vector(-28.8, 5, 0), App.Vector(0, 0, 1), 1.5), math.radians(43), math.radians(223)),  # 0
    Part.ArcOfCircle(Part.Circle(App.Vector(-28.8, 5, 0), App.Vector(0, 0, 1), 1.5), math.radians(0), math.radians(43)),  # 1
    Part.ArcOfCircle(Part.Circle(App.Vector(-28.8, 5, 0), App.Vector(0, 0, 1), 1.5), math.radians(-137), math.radians(0)),  # 2
    Part.ArcOfCircle(Part.Circle(App.Vector(-39.6, 5, 0), App.Vector(0, 0, 1), 1.5), math.radians(-43), math.radians(0)),  # 3
    Part.ArcOfCircle(Part.Circle(App.Vector(-39.6, 5, 0), App.Vector(0, 0, 1), 1.5), math.radians(137), math.radians(317)),  # 4
    Part.ArcOfCircle(Part.Circle(App.Vector(-39.6, 5, 0), App.Vector(0, 0, 1), 1.5), math.radians(0), math.radians(137)),  # 5
], False)
sketch11.addConstraint([
    Sketcher.Constraint("Tangent", 0, 1, 1, 2),
    Sketcher.Constraint("Tangent", 1, 1, 2, 2),
    Sketcher.Constraint("Tangent", 2, 1, 0, 2),
    Sketcher.Constraint("Tangent", 3, 1, 4, 2),
    Sketcher.Constraint("Tangent", 4, 1, 5, 2),
    Sketcher.Constraint("Tangent", 5, 1, 3, 2),
    Sketcher.Constraint("Equal", 2, 3),
    Sketcher.Constraint("Horizontal", 2, 3, 3, 3),
    Sketcher.Constraint("Horizontal", 5, 3, 1, 1),
    Sketcher.Constraint("Horizontal", 2, 1, 3, 1),
    Sketcher.Constraint("Horizontal", 0, 1, 4, 1),
    Sketcher.Constraint("Horizontal", 1, 1, 5, 1),
    Sketcher.Constraint("Radius", 0, 1.5),
    Sketcher.Constraint("DistanceY", -1, 1, 0, 3, 5.0),
    Sketcher.Constraint("DistanceX", 3, 3, 0, 3, 10.805),
    Sketcher.Constraint("DistanceX", 4, 1, 2, 1, 10.805),
    Sketcher.Constraint("DistanceX", 0, 3, -1, 1, 28.8025),
    Sketcher.Constraint("DistanceY", -1, 1, 0, 1, 6.018858),
])
pocket10 = body.newObject("PartDesign::Pocket", "Pocket009")
pocket10.Profile = sketch11
pocket10.Length = 5
pocket10.Reversed = True

doc.recompute()
